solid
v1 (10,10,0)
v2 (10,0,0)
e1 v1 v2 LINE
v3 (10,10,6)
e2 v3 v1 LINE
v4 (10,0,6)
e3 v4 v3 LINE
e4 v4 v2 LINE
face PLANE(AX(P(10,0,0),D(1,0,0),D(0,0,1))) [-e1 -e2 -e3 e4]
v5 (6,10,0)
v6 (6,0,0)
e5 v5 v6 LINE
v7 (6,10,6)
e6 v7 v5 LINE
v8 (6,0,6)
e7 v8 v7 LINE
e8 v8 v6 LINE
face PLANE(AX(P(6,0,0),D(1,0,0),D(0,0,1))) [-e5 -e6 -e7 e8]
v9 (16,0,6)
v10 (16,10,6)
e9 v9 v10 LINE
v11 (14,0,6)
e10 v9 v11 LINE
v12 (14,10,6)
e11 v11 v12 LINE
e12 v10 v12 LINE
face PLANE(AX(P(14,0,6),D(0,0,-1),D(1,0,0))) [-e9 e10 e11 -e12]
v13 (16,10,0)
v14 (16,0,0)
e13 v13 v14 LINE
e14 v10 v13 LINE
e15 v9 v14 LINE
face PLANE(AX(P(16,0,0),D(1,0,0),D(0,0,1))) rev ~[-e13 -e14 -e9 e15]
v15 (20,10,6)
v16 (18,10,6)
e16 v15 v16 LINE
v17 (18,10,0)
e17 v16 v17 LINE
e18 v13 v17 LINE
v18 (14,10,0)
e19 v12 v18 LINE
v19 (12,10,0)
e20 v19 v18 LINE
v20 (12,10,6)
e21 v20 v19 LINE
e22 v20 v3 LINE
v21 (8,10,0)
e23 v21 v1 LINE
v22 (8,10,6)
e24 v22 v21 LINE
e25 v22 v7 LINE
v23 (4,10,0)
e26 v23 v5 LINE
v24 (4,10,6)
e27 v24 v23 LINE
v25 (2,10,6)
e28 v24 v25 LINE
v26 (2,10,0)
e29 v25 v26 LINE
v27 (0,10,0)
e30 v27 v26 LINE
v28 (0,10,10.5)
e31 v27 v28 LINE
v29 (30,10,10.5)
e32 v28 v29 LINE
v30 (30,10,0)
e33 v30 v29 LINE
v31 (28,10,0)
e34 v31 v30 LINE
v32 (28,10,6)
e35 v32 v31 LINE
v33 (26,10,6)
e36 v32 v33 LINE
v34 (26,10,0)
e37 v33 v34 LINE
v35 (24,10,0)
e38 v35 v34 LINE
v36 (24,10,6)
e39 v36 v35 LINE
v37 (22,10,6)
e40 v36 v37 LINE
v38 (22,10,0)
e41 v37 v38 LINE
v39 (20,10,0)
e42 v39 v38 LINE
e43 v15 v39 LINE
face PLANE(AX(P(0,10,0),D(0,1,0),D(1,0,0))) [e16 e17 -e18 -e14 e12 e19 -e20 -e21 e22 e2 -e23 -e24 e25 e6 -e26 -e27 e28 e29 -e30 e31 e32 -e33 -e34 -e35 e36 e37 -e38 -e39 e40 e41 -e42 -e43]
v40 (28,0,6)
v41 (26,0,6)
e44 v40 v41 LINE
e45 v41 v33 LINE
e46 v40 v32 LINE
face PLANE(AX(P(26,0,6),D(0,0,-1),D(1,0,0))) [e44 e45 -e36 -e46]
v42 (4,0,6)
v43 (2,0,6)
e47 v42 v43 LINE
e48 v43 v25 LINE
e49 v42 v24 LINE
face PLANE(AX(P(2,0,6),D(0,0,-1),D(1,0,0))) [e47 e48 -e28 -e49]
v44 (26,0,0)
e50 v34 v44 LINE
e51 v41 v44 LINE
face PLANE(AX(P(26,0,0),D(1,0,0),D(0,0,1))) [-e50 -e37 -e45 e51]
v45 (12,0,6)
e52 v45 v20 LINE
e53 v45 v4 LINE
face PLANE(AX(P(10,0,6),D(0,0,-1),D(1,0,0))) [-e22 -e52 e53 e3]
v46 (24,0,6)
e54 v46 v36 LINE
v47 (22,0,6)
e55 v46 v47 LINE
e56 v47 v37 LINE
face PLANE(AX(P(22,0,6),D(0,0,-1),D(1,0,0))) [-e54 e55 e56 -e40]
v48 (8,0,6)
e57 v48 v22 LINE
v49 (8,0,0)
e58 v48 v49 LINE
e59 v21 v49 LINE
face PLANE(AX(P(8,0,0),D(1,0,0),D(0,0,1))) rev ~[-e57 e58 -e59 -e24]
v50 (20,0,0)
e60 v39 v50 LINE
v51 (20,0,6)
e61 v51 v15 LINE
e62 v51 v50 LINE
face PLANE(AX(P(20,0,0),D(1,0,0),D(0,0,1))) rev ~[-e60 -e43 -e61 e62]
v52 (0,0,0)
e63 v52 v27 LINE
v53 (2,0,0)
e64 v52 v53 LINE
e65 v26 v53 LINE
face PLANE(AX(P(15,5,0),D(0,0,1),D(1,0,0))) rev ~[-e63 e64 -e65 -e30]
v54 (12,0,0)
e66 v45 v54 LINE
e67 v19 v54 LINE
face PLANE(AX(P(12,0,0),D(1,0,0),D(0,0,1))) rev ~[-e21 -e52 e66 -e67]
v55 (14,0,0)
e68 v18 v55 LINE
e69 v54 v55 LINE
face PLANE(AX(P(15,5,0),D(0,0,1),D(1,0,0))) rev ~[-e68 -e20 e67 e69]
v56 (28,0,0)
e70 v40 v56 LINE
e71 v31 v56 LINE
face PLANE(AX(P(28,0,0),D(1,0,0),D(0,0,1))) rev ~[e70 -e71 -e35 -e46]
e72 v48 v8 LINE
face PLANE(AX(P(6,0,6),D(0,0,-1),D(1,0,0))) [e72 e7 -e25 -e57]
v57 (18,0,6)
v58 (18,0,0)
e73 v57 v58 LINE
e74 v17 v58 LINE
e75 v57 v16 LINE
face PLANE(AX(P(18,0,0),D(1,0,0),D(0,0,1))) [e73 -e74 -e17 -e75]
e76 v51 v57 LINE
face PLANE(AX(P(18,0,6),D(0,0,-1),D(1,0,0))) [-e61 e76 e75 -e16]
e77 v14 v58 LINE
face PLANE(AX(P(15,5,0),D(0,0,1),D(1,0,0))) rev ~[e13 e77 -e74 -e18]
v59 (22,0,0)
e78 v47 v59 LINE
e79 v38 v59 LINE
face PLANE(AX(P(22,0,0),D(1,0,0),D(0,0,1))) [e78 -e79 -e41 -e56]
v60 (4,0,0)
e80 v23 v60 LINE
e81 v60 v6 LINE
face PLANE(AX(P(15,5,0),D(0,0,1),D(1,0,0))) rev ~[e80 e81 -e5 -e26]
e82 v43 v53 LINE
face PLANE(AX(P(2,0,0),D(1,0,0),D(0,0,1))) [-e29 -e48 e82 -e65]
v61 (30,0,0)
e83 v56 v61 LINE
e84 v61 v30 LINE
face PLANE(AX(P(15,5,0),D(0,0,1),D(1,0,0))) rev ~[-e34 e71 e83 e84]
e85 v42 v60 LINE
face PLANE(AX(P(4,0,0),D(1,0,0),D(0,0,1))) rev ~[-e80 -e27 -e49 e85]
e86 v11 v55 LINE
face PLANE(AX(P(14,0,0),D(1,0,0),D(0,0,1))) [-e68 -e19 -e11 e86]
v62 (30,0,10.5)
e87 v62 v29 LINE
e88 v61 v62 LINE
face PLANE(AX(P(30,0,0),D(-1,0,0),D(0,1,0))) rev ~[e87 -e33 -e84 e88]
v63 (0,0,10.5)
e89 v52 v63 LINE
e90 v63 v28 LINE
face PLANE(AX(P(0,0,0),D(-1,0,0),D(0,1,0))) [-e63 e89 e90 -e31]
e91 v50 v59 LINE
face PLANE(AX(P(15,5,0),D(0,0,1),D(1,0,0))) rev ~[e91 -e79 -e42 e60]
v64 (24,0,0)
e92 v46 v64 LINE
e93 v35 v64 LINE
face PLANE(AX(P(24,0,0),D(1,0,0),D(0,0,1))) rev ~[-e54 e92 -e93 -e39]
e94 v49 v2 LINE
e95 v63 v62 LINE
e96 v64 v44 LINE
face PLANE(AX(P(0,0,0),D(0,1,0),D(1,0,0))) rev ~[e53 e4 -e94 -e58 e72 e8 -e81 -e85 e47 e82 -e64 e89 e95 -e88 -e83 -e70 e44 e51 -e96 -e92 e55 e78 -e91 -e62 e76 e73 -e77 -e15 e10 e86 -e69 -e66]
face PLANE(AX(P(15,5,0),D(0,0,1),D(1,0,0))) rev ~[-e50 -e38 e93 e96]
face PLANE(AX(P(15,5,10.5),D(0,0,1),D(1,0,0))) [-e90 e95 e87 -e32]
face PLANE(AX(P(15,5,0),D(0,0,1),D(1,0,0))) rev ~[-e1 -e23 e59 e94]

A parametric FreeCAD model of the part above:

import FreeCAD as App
import Part
import Sketcher

V = App.Vector

doc = App.newDocument("Part")
body = doc.addObject("PartDesign::Body", "Body")

sketch1 = body.newObject("Sketcher::SketchObject", "Sketch")
sketch1.AttachmentSupport = (doc.getObject("XY_Plane"), [""])
sketch1.MapMode = "FlatFace"
sketch1.addGeometry([
    Part.LineSegment(V(0, 10, 0), V(0, 0, 0)),
    Part.LineSegment(V(0, 0, 0), V(30, 0, 0)),
    Part.LineSegment(V(30, 0, 0), V(30, 10, 0)),
    Part.LineSegment(V(30, 10, 0), V(0, 10, 0)),
], False)
sketch1.addConstraint([
    Sketcher.Constraint("Coincident", 0, 2, 1, 1),
    Sketcher.Constraint("Coincident", 1, 2, 2, 1),
    Sketcher.Constraint("Coincident", 2, 2, 3, 1),
    Sketcher.Constraint("Coincident", 3, 2, 0, 1),
    Sketcher.Constraint("Vertical", 0),
    Sketcher.Constraint("Horizontal", 1),
    Sketcher.Constraint("Vertical", 2),
    Sketcher.Constraint("Horizontal", 3),
    Sketcher.Constraint("Coincident", 0, 2, -1, 1),
    Sketcher.Constraint("DistanceX", 1, 1, 1, 2, 30.0),
    Sketcher.Constraint("DistanceY", 0, 2, 0, 1, 10.0),
])
pad1 = body.newObject("PartDesign::Pad", "Pad")
pad1.Profile = sketch1
pad1.Length = 10.5

sketch2 = body.newObject("Sketcher::SketchObject", "Sketch001")
sketch2.AttachmentSupport = (doc.getObject("XZ_Plane"), [""])
sketch2.MapMode = "FlatFace"
sketch2.addGeometry([
    Part.LineSegment(V(2, 6, 0), V(2, 0, 0)),
    Part.LineSegment(V(2, 0, 0), V(4, 0, 0)),
    Part.LineSegment(V(4, 0, 0), V(4, 6, 0)),
    Part.LineSegment(V(4, 6, 0), V(2, 6, 0)),
], False)
sketch2.addConstraint([
    Sketcher.Constraint("Coincident", 0, 2, 1, 1),
    Sketcher.Constraint("Coincident", 1, 2, 2, 1),
    Sketcher.Constraint("Coincident", 2, 2, 3, 1),
    Sketcher.Constraint("Coincident", 3, 2, 0, 1),
    Sketcher.Constraint("Vertical", 0),
    Sketcher.Constraint("Horizontal", 1),
    Sketcher.Constraint("Vertical", 2),
    Sketcher.Constraint("Horizontal", 3),
    Sketcher.Constraint("PointOnObject", 0, 2, -1),
    Sketcher.Constraint("DistanceX", 1, 1, 1, 2, 2.0),
    Sketcher.Constraint("DistanceY", 0, 2, 0, 1, 6.0),
    Sketcher.Constraint("DistanceX", -1, 1, 0, 2, 2.0),
])
pocket1 = body.newObject("PartDesign::Pocket", "Pocket")
pocket1.Profile = sketch2
pocket1.Length = 68.640828
pocket1.Midplane = True
doc.recompute()

linearpattern = body.newObject("PartDesign::LinearPattern", "LinearPattern")
linearpattern.Originals = [pocket1]
linearpattern.Direction = (doc.getObject("X_Axis"), [""])
linearpattern.Mode = "offset"
linearpattern.Offset = 4
linearpattern.Occurrences = 7
body.Tip = linearpattern

doc.recompute()
